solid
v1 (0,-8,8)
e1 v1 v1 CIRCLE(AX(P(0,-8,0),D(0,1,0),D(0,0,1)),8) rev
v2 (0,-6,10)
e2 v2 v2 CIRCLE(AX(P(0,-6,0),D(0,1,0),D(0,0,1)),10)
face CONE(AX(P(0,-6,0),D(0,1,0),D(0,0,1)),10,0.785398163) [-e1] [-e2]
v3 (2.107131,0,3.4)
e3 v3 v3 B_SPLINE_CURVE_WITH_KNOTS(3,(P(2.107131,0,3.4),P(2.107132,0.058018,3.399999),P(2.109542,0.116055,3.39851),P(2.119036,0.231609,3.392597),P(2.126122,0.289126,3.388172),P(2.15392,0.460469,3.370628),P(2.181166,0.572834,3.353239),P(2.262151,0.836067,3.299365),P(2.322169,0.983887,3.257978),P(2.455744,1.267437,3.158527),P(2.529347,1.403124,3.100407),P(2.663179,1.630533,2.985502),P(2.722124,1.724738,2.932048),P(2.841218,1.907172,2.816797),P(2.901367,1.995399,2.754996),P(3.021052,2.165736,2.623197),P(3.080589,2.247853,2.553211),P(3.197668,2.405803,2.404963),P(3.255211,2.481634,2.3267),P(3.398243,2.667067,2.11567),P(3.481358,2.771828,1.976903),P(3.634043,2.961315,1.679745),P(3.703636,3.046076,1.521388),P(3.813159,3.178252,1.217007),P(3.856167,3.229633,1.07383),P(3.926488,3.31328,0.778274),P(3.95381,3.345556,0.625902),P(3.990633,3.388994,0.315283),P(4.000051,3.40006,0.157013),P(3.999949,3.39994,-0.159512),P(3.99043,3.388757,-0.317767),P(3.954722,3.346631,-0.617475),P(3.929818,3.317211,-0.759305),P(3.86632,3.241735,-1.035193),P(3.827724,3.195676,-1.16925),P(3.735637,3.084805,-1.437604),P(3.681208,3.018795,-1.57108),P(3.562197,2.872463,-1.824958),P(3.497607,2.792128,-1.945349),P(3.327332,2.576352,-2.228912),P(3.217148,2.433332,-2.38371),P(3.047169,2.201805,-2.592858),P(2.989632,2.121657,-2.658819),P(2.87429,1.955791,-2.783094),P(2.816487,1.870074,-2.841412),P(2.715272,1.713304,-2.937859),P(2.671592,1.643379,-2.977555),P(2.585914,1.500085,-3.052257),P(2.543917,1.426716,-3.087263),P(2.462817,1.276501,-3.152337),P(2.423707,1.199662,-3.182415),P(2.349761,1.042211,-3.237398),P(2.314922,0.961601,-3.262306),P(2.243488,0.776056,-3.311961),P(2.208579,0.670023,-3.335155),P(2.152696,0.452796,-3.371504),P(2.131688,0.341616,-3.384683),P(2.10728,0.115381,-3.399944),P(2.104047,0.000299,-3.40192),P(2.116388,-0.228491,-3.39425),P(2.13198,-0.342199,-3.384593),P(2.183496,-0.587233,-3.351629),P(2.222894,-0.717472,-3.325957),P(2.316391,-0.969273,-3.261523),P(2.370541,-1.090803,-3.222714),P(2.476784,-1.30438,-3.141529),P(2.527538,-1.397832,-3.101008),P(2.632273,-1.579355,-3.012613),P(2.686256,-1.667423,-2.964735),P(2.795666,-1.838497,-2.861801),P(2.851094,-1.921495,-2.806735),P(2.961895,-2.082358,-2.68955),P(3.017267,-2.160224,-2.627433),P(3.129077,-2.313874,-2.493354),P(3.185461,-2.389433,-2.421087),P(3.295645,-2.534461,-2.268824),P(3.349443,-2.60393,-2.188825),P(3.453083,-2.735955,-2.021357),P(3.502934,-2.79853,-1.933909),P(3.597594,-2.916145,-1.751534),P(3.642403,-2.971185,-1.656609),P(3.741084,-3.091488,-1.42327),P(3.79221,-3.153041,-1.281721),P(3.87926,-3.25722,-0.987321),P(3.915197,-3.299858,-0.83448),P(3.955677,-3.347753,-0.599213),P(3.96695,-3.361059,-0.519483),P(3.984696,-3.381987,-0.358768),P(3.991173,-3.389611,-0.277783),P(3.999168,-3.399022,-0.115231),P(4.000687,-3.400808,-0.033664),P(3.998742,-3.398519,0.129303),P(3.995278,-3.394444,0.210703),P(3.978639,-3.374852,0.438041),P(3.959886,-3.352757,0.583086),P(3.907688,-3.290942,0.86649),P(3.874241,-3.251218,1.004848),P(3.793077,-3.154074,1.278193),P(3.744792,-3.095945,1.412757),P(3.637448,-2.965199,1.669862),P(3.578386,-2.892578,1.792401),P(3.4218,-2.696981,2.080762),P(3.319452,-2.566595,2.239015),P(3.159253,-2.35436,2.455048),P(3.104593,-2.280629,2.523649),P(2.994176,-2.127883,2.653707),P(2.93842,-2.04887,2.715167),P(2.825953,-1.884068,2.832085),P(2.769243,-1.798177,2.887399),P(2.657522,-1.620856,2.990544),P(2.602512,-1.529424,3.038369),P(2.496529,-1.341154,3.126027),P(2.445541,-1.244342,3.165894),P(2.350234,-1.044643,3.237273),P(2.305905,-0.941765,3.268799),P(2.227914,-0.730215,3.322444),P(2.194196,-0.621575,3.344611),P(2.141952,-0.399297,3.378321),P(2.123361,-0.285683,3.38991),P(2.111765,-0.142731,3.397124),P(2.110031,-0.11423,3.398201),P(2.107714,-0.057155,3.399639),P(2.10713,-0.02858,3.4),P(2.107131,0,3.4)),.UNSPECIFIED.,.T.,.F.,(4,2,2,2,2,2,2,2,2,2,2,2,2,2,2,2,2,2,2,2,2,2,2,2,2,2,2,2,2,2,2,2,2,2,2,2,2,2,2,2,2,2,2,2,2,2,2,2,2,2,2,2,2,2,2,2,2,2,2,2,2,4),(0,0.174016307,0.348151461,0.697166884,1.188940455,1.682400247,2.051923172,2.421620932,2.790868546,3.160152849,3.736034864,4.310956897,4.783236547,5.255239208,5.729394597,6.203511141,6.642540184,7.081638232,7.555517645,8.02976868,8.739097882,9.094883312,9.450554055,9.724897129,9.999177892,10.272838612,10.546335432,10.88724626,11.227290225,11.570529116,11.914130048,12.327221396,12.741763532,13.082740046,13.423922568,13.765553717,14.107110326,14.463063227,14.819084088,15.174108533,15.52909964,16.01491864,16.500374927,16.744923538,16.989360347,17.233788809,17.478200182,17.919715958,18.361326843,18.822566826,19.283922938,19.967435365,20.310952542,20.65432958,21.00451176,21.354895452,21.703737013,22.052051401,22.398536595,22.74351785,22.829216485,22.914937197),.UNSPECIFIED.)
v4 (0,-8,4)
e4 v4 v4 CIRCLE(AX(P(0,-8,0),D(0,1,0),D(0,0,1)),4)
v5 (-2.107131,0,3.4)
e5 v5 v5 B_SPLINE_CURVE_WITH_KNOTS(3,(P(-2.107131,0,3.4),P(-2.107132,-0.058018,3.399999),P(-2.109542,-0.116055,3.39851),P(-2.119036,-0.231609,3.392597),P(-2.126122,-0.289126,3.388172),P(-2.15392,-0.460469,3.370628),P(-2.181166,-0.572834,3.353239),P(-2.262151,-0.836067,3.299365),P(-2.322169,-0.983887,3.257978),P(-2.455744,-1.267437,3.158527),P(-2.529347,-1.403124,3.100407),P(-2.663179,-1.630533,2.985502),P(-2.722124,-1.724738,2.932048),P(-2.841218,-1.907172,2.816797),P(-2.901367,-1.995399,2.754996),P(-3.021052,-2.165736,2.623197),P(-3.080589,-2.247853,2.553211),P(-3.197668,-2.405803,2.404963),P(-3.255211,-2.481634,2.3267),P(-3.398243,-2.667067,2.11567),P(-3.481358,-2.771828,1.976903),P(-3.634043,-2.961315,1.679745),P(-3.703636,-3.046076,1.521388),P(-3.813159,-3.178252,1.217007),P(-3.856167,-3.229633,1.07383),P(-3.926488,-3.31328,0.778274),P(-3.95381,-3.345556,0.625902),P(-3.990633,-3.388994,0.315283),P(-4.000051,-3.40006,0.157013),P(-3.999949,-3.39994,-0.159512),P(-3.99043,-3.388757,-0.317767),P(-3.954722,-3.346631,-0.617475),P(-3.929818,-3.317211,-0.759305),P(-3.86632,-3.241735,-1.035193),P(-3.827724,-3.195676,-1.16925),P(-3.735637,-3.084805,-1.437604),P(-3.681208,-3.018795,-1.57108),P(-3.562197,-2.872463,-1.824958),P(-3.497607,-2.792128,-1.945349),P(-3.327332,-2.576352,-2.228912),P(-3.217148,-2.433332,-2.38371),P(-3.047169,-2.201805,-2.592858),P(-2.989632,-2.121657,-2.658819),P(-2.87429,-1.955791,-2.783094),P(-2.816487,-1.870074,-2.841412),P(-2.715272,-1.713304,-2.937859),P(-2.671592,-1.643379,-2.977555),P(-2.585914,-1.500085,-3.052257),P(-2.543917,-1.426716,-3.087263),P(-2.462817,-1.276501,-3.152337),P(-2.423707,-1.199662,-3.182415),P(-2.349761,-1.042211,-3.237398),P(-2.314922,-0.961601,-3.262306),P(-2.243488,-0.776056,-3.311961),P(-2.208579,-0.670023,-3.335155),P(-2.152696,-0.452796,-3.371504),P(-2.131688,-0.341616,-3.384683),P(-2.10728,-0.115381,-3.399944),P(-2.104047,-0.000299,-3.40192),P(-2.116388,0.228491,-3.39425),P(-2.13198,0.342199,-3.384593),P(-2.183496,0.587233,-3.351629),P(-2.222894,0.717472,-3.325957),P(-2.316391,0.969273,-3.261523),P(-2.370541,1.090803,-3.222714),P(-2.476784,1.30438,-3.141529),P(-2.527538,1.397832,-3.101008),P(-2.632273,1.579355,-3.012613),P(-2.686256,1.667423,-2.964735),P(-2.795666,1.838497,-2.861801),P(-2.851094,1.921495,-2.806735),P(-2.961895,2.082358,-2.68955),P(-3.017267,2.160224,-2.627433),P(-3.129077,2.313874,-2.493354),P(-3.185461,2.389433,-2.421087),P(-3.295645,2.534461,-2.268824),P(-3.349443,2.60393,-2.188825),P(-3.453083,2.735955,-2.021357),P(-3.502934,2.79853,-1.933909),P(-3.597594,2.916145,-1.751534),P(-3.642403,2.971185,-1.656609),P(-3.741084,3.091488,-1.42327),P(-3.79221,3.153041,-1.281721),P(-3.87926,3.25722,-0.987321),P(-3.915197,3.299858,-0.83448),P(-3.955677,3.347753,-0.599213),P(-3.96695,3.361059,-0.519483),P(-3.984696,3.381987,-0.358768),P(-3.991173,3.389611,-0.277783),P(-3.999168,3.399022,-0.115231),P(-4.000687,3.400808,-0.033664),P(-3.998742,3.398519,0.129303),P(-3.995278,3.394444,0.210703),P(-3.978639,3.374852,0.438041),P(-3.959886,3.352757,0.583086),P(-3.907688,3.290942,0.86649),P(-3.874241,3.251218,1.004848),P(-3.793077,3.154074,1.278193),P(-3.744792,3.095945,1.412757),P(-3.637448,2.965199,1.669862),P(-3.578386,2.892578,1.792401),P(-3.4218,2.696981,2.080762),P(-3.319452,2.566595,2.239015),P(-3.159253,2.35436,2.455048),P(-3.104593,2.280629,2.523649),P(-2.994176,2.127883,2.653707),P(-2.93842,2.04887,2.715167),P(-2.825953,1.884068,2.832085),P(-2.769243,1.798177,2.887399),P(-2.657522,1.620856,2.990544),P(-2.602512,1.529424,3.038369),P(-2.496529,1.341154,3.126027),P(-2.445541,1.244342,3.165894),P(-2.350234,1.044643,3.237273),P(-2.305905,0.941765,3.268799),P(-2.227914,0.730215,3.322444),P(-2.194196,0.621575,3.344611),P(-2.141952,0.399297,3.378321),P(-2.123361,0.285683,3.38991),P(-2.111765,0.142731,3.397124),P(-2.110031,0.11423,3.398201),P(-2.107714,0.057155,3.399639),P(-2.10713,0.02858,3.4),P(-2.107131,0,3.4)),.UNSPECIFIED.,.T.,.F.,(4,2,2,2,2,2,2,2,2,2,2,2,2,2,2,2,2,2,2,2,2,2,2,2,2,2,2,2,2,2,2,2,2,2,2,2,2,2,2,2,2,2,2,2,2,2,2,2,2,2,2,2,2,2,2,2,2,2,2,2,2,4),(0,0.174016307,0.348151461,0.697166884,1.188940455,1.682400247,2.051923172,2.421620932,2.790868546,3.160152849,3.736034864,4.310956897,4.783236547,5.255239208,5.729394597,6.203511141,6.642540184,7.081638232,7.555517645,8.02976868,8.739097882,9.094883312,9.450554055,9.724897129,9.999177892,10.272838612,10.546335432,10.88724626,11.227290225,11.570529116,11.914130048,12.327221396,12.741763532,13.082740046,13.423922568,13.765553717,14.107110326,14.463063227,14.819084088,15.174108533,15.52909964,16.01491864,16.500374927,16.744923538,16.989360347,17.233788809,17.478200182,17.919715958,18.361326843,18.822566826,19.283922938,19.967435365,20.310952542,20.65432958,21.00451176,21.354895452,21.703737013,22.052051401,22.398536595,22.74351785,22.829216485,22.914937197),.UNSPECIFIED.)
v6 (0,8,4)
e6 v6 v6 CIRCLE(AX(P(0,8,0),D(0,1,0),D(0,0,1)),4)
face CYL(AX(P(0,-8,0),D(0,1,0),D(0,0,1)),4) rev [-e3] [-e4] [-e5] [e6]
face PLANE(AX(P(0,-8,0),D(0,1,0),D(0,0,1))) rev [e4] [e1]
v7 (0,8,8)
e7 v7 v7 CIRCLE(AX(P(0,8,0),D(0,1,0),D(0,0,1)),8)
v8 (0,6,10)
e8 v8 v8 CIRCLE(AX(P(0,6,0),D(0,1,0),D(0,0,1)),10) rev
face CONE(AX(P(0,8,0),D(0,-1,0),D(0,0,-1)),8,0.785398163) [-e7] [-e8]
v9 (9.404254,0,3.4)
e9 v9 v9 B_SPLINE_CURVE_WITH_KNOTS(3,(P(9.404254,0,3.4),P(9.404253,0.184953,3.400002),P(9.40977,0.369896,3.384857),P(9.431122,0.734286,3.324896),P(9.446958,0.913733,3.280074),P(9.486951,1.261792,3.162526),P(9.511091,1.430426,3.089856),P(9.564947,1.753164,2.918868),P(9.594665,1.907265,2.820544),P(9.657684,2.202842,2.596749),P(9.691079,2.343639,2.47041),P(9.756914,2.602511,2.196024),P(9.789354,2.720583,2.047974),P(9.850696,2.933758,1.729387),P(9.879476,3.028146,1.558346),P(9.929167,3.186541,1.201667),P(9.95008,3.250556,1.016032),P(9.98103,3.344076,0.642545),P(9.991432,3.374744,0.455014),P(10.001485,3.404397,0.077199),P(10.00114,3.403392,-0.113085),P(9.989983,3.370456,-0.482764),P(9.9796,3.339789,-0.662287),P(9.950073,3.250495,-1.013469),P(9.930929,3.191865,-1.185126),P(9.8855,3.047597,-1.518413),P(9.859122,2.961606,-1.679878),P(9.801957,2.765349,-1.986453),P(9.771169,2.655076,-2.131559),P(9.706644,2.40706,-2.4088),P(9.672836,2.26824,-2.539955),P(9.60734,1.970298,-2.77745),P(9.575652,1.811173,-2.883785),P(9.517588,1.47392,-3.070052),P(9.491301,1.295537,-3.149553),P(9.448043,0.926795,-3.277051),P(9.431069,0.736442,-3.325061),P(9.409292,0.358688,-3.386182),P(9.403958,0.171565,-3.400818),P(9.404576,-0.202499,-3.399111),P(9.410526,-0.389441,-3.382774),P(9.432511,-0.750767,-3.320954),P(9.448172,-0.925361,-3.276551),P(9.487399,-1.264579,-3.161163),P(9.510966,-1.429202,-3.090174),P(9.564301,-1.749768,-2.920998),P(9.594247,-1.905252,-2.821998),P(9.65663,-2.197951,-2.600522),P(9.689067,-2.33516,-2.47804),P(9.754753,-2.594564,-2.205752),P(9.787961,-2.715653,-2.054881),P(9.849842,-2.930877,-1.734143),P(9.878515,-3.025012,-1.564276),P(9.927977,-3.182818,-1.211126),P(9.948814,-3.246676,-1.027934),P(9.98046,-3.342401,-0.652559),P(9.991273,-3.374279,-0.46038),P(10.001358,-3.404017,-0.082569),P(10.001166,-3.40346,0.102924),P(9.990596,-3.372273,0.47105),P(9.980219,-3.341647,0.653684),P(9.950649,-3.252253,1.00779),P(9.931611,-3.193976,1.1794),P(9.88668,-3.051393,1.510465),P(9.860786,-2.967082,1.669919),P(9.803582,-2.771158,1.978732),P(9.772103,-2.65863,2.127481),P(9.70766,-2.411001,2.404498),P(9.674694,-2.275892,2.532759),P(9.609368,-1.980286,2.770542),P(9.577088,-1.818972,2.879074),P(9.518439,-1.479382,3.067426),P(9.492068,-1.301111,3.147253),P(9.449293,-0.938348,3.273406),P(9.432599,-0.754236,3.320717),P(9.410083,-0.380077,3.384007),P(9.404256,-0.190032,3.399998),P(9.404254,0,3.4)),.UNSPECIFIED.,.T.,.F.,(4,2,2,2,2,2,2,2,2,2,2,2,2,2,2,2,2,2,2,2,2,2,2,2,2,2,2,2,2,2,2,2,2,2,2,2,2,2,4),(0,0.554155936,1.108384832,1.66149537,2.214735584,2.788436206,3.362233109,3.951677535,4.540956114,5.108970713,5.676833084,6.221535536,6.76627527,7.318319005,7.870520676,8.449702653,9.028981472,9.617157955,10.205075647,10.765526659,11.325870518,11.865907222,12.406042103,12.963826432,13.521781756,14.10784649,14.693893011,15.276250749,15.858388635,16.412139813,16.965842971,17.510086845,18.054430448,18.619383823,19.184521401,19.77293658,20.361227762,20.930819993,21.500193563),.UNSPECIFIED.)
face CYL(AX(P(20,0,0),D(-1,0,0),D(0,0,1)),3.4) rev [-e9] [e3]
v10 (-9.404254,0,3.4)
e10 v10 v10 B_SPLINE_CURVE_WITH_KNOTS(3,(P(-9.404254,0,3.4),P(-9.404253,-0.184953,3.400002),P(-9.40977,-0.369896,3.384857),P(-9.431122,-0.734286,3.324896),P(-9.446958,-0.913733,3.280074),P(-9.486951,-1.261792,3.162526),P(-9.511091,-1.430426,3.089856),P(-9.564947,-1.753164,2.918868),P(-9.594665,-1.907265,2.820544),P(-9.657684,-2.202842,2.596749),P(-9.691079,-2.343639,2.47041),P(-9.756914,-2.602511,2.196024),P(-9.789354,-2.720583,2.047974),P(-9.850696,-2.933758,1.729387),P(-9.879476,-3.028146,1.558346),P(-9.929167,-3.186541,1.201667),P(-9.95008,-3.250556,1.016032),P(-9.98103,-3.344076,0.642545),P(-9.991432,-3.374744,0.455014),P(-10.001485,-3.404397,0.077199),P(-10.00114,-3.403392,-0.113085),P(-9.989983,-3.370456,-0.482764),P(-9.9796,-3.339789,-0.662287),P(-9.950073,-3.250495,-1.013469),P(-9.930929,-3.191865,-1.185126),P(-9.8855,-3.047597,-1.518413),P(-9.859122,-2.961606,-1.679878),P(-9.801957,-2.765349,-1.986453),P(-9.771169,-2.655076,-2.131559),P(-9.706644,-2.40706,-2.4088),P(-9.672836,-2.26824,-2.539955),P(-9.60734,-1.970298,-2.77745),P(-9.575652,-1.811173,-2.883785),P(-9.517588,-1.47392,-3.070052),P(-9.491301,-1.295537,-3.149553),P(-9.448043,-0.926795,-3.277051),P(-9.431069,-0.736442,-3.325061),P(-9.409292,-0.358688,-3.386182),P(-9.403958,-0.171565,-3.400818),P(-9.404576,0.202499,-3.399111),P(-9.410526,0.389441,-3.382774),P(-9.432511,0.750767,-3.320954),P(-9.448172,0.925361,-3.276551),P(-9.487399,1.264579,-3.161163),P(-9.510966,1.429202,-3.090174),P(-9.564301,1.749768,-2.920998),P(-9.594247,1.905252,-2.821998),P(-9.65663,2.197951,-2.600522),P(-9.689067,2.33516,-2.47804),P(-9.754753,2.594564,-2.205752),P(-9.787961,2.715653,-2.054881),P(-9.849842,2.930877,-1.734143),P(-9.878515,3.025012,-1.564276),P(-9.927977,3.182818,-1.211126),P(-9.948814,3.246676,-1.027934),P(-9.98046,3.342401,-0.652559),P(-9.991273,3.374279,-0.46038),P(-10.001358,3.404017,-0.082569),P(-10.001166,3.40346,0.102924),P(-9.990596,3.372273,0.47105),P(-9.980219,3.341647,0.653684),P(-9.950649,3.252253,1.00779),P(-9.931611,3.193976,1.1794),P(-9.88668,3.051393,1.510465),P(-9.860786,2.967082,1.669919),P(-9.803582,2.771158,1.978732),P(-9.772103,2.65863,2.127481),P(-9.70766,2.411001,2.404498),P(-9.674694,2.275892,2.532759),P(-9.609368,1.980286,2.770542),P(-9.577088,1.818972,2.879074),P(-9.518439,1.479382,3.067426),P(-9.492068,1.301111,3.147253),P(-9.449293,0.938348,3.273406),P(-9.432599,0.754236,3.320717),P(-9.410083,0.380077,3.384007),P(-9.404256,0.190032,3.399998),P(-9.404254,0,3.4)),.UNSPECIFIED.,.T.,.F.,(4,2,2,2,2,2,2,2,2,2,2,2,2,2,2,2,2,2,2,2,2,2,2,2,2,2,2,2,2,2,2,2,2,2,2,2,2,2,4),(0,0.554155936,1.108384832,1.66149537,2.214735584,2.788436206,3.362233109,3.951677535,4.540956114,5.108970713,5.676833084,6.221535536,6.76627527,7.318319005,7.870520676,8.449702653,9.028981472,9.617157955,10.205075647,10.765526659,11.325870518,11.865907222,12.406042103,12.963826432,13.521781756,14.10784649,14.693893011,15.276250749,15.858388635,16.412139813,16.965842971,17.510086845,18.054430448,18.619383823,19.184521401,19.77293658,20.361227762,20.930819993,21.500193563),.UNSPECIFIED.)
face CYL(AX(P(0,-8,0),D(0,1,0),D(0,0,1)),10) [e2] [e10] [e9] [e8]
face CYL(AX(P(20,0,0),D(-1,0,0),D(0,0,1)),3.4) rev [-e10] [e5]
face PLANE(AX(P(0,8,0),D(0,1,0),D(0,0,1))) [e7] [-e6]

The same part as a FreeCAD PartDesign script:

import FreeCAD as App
import Part
import Sketcher
from FreeCAD import Vector


def edges_at(feature, points):
    """Names of the edges that pass closest to the given points."""
    edges = feature.Shape.Edges
    near = lambda p: min(range(len(edges)), key=lambda i: edges[i].distToShape(Part.Vertex(*p))[0])
    return sorted({f"Edge{near(p) + 1}" for p in points})

doc = App.newDocument("Part")
body = doc.addObject("PartDesign::Body", "Body")

# Sketch on XZ plane
sketch1 = body.newObject("Sketcher::SketchObject", "Sketch")
sketch1.AttachmentSupport = (doc.getObject("XZ_Plane"), [""])
sketch1.MapMode = "FlatFace"
sketch1.addGeometry([
    Part.Circle(Vector(0, 0, 0), Vector(0, 0, 1), 10),
    Part.Circle(Vector(0, 0, 0), Vector(0, 0, 1), 4),
], False)
sketch1.addConstraint([
    Sketcher.Constraint("Coincident", 0, 3, -1, 1),
    Sketcher.Constraint("Coincident", 1, 3, -1, 1),
    Sketcher.Constraint("Diameter", 0, 20.0),
    Sketcher.Constraint("Diameter", 1, 8.0),
])
pad1 = body.newObject("PartDesign::Pad", "Pad")
pad1.Profile = sketch1
pad1.Type = "TwoLengths"
pad1.Length = 8
pad1.Length2 = 8
pad1.Reversed = True

# Sketch on YZ plane
sketch2 = body.newObject("Sketcher::SketchObject", "Sketch001")
sketch2.AttachmentSupport = (doc.getObject("YZ_Plane"), [""])
sketch2.MapMode = "FlatFace"
sketch2.addGeometry(Part.Circle(Vector(0, 0, 0), Vector(0, 0, 1), 3.4), False)
sketch2.addConstraint([
    Sketcher.Constraint("Coincident", 0, 3, -1, 1),
    Sketcher.Constraint("Diameter", 0, 6.8),
])
pocket1 = body.newObject("PartDesign::Pocket", "Pocket")
pocket1.Profile = sketch2
pocket1.Type = "ThroughAll"
pocket1.Midplane = True
doc.recompute()

chamfer = body.newObject("PartDesign::Chamfer", "Chamfer")
chamfer.Base = (pocket1, edges_at(pocket1, [(0, -8, -10), (0, 8, -10)]))
chamfer.Size = 2

doc.recompute()
